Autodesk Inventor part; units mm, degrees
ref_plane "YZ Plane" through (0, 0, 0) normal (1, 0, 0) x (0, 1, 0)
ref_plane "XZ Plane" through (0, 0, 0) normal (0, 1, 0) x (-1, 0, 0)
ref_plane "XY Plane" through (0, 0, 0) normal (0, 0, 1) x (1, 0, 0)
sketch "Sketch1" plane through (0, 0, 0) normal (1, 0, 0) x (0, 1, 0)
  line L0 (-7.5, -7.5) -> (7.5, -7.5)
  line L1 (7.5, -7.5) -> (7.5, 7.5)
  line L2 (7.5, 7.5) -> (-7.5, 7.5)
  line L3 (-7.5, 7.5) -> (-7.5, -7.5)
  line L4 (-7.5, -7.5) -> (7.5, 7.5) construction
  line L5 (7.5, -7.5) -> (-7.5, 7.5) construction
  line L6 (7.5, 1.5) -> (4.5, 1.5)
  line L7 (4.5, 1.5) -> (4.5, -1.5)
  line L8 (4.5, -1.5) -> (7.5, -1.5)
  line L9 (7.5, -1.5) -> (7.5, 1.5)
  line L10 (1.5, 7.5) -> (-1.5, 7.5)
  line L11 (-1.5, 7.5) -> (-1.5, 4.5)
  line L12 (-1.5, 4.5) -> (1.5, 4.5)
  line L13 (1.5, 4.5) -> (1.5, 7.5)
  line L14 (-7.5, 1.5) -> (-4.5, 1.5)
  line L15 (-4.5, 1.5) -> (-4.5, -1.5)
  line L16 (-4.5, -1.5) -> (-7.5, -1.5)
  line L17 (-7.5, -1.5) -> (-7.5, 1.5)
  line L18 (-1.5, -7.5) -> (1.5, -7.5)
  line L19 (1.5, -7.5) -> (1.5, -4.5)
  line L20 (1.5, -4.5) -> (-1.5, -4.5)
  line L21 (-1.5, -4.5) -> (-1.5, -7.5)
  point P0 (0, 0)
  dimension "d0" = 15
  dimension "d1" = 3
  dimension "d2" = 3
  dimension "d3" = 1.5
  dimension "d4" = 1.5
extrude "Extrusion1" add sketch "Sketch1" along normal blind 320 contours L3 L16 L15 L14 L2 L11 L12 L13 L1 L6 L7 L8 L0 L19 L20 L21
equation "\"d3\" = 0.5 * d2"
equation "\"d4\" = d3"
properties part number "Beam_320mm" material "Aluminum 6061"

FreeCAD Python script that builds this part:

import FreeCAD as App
import Part
import Sketcher
from FreeCAD import Vector
Q = App.Units.Quantity


def add_polygon(sketch, points):
    """Adds a closed chain of lines whose ends are joined by coincident constraints."""
    first, n = sketch.GeometryCount, len(points)
    for a, b in zip(points, points[1:] + points[:1]):
        sketch.addGeometry(Part.LineSegment(App.Vector(*a, 0), App.Vector(*b, 0)), False)
    for i in range(n):
        sketch.addConstraint(Sketcher.Constraint("Coincident", first + i, 2, first + (i + 1) % n, 1))

doc = App.newDocument("Part")
params = doc.addObject("Spreadsheet::Sheet", "Params")
for row, (alias, value) in enumerate([
    ("sketch1_width", "3 mm"),
    ("pad1_length", "320 mm"),
], start=1):
    params.set(f"A{row}", alias)
    params.set(f"B{row}", "=" + value)
    params.setAlias(f"B{row}", alias)

body = doc.addObject("PartDesign::Body", "Body")

sketch1 = body.newObject("Sketcher::SketchObject", "Sketch")
sketch1.AttachmentSupport = (doc.getObject("YZ_Plane"), [""])
sketch1.MapMode = "FlatFace"
add_polygon(sketch1, [(-7.5, -1.5), (-7.5, -7.5), (-1.5, -7.5), (-1.5, -4.5), (1.5, -4.5), (1.5, -7.5), (7.5, -7.5), (7.5, -1.5), (4.5, -1.5), (4.5, 1.5), (7.5, 1.5), (7.5, 7.5), (1.5, 7.5), (1.5, 4.5), (-1.5, 4.5), (-1.5, 7.5), (-7.5, 7.5), (-7.5, 1.5), (-4.5, 1.5), (-4.5, -1.5)])
sketch1.addConstraint(Sketcher.Constraint("Vertical", 0))
sketch1.addConstraint(Sketcher.Constraint("Horizontal", 1))
sketch1.addConstraint(Sketcher.Constraint("Vertical", 2))
sketch1.addConstraint(Sketcher.Constraint("Horizontal", 3))
sketch1.addConstraint(Sketcher.Constraint("Vertical", 4))
sketch1.addConstraint(Sketcher.Constraint("Horizontal", 5))
sketch1.addConstraint(Sketcher.Constraint("Vertical", 6))
sketch1.addConstraint(Sketcher.Constraint("Horizontal", 7))
sketch1.addConstraint(Sketcher.Constraint("Vertical", 8))
sketch1.addConstraint(Sketcher.Constraint("Horizontal", 9))
sketch1.addConstraint(Sketcher.Constraint("Vertical", 10))
sketch1.addConstraint(Sketcher.Constraint("Horizontal", 11))
sketch1.addConstraint(Sketcher.Constraint("Vertical", 12))
sketch1.addConstraint(Sketcher.Constraint("Horizontal", 13))
sketch1.addConstraint(Sketcher.Constraint("Vertical", 14))
sketch1.addConstraint(Sketcher.Constraint("Horizontal", 15))
sketch1.addConstraint(Sketcher.Constraint("Vertical", 16))
sketch1.addConstraint(Sketcher.Constraint("Horizontal", 17))
sketch1.addConstraint(Sketcher.Constraint("Vertical", 18))
sketch1.addConstraint(Sketcher.Constraint("Horizontal", 19))
sketch1.addConstraint(Sketcher.Constraint("Symmetric", 0, 2, 10, 2, -1, 1))
sketch1.addConstraint(Sketcher.Constraint("Symmetric", 2, 2, 12, 2, -1, 1))
sketch1.addConstraint(Sketcher.Constraint("Symmetric", 4, 2, 14, 2, -1, 1))
sketch1.addConstraint(Sketcher.Constraint("Symmetric", 6, 2, 16, 2, -1, 1))
sketch1.addConstraint(Sketcher.Constraint("Symmetric", 8, 2, 18, 2, -1, 1))
sketch1.addConstraint(Sketcher.Constraint("Symmetric", 1, 2, 4, 2, -2))
sketch1.addConstraint(Sketcher.Constraint("Symmetric", 9, 2, 16, 2, -2))
sketch1.addConstraint(Sketcher.Constraint("Equal", 3, 7))
sketch1.addConstraint(Sketcher.Constraint("Equal", 15, 0))
sketch1.addConstraint(Sketcher.Constraint("Equal", 19, 2))
sketch1.addConstraint(Sketcher.Constraint("Equal", 4, 8))
sketch1.addConstraint(Sketcher.Constraint("DistanceX", 3, 1, 3, 2, Q("3 mm")))
sketch1.addConstraint(Sketcher.Constraint("DistanceX", 0, 2, 5, 2, Q("15 mm")))
sketch1.setExpression("Constraints[51]", "Params.sketch1_width")
pad1 = body.newObject("PartDesign::Pad", "Pad")
pad1.Profile = sketch1
pad1.setExpression("Length", "Params.pad1_length")

doc.recompute()
